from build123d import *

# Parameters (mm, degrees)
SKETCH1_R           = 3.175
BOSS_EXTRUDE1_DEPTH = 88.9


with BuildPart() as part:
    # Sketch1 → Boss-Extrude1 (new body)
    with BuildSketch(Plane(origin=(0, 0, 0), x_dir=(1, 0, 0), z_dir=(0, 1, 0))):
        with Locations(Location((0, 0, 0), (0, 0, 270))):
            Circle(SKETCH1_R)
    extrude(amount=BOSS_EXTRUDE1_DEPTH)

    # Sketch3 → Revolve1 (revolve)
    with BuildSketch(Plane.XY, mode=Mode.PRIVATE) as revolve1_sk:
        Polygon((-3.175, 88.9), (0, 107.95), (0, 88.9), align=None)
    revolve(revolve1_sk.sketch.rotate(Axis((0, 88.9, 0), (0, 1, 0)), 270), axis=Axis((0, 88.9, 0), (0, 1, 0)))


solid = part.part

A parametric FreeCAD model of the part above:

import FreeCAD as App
import Part
import Sketcher
from FreeCAD import Vector
Q = App.Units.Quantity

doc = App.newDocument("Part")
body = doc.addObject("PartDesign::Body", "Body")

# Sketch on XZ plane
sketch1 = body.newObject("Sketcher::SketchObject", "Sketch")
sketch1.AttachmentSupport = (doc.getObject("XZ_Plane"), [""])
sketch1.MapMode = "FlatFace"
sketch1.addGeometry(Part.Circle(Vector(0, 0, 0), Vector(0, 0, 1), 3.2), False)
sketch1.addConstraint([
    Sketcher.Constraint("Coincident", 0, 3, -1, 1),
    Sketcher.Constraint("Diameter", 0, Q("0.25 in")),
])
pad1 = body.newObject("PartDesign::Pad", "Pad")
pad1.Profile = sketch1
pad1.Length = Q("3.5 in")
pad1.Reversed = True

# Sketch on XY plane
sketch2 = body.newObject("Sketcher::SketchObject", "Sketch001")
sketch2.AttachmentSupport = (doc.getObject("XY_Plane"), [""])
sketch2.MapMode = "FlatFace"
sketch2.addGeometry([
    Part.LineSegment(Vector(0, 108, 0), Vector(-3.2, 88.9, 0)),
    Part.LineSegment(Vector(-3.2, 88.9, 0), Vector(0, 88.9, 0)),
    Part.LineSegment(Vector(0, 88.9, 0), Vector(0, 108, 0)),
], False)
sketch2.addConstraint([
    Sketcher.Constraint("Coincident", 0, 2, 1, 1),
    Sketcher.Constraint("Coincident", 1, 2, 2, 1),
    Sketcher.Constraint("Coincident", 2, 2, 0, 1),
    Sketcher.Constraint("Horizontal", 1),
    Sketcher.Constraint("Vertical", 2),
    Sketcher.Constraint("PointOnObject", 1, 2, -2),
    Sketcher.Constraint("DistanceY", 2, 1, 2, 2, Q("0.75 in")),
    Sketcher.Constraint("DistanceY", -1, 1, 0, 2, Q("3.5 in")),
    Sketcher.Constraint("DistanceX", 1, 1, 1, 2, Q("0.125 in")),
])
revolution = body.newObject("PartDesign::Revolution", "Revolution")
revolution.Profile = sketch2
revolution.ReferenceAxis = (sketch2, ["V_Axis"])
revolution.Angle = 360

doc.recompute()
